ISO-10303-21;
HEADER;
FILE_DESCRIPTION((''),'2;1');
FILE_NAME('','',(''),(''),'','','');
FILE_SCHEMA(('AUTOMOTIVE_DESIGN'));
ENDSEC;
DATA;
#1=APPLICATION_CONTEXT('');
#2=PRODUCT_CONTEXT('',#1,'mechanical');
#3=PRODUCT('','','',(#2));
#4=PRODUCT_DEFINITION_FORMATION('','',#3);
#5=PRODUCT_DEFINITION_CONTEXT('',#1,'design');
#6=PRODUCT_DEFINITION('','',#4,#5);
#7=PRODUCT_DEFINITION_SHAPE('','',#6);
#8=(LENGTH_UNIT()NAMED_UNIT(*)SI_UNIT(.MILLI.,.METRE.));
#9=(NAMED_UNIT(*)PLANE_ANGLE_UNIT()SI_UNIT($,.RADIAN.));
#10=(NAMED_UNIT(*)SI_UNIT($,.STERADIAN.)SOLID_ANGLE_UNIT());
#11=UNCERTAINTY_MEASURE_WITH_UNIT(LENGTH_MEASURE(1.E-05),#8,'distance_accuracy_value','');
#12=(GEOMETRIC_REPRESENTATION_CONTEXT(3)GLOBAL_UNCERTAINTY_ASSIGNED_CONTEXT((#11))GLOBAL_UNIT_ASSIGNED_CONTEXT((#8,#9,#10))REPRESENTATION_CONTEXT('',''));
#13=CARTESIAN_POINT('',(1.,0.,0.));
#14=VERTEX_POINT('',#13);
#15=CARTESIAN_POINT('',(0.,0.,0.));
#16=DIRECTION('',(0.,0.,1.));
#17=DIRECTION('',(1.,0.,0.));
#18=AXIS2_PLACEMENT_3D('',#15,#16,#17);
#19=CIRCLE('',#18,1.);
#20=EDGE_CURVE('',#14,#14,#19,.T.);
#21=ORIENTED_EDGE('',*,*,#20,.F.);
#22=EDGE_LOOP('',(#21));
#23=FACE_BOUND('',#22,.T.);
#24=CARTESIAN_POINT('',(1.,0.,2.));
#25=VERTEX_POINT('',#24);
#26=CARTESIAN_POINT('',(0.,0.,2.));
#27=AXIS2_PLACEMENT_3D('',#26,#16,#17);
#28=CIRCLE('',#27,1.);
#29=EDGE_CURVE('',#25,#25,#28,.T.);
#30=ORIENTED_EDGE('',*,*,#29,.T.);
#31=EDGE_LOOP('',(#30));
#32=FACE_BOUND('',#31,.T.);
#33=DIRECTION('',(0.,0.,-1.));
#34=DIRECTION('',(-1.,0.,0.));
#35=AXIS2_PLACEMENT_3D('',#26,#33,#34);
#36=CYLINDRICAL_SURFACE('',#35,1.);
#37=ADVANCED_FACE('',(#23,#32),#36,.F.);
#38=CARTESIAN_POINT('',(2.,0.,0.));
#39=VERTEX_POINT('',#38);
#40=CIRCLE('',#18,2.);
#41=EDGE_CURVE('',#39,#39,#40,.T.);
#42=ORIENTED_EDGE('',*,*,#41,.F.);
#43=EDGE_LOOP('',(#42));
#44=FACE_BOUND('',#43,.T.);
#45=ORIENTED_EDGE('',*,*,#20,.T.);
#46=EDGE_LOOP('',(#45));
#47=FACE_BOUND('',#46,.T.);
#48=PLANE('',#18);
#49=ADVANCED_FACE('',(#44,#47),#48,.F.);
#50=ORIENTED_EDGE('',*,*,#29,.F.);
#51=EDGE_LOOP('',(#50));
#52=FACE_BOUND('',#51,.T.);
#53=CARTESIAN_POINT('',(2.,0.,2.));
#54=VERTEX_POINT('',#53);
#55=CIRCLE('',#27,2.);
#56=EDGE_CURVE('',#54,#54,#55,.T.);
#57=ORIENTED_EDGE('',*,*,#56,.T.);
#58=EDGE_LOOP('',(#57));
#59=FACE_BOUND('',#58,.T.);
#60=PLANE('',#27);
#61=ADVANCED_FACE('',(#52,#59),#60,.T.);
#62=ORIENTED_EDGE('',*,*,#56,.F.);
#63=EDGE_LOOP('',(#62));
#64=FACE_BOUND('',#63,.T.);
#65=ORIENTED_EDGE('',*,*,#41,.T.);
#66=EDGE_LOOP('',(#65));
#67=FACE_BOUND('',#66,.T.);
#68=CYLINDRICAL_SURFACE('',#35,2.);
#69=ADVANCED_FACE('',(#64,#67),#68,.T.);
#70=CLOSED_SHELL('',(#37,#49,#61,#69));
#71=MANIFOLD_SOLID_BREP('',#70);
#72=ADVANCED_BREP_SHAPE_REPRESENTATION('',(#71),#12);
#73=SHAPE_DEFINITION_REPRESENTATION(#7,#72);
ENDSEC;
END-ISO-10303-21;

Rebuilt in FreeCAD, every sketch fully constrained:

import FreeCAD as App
import Part
import Sketcher
Q = App.Units.Quantity

doc = App.newDocument("Part")
params = doc.addObject("Spreadsheet::Sheet", "Params")
for row, (alias, value) in enumerate([
    ("sketch1_diameter", "4 mm"),
    ("sketch1_diameter2", "2 mm"),
    ("pad1_length", "2 mm"),
], start=1):
    params.set(f"A{row}", alias)
    params.set(f"B{row}", "=" + value)
    params.setAlias(f"B{row}", alias)

body = doc.addObject("PartDesign::Body", "Body")

# Sketch on XY plane
sketch1 = body.newObject("Sketcher::SketchObject", "Sketch")
sketch1.AttachmentSupport = (doc.getObject("XY_Plane"), [""])
sketch1.MapMode = "FlatFace"
sketch1.addGeometry([
    Part.Circle(App.Vector(0, 0, 0), App.Vector(0, 0, 1), 2),
    Part.Circle(App.Vector(0, 0, 0), App.Vector(0, 0, 1), 1),
], False)
sketch1.addConstraint([
    Sketcher.Constraint("Coincident", 0, 3, -1, 1),
    Sketcher.Constraint("Coincident", 1, 3, -1, 1),
    Sketcher.Constraint("Diameter", 0, Q("4 mm")),
    Sketcher.Constraint("Diameter", 1, Q("2 mm")),
])
sketch1.setExpression("Constraints[2]", "Params.sketch1_diameter")
sketch1.setExpression("Constraints[3]", "Params.sketch1_diameter2")
pad1 = body.newObject("PartDesign::Pad", "Pad")
pad1.Profile = sketch1
pad1.setExpression("Length", "Params.pad1_length")

doc.recompute()
